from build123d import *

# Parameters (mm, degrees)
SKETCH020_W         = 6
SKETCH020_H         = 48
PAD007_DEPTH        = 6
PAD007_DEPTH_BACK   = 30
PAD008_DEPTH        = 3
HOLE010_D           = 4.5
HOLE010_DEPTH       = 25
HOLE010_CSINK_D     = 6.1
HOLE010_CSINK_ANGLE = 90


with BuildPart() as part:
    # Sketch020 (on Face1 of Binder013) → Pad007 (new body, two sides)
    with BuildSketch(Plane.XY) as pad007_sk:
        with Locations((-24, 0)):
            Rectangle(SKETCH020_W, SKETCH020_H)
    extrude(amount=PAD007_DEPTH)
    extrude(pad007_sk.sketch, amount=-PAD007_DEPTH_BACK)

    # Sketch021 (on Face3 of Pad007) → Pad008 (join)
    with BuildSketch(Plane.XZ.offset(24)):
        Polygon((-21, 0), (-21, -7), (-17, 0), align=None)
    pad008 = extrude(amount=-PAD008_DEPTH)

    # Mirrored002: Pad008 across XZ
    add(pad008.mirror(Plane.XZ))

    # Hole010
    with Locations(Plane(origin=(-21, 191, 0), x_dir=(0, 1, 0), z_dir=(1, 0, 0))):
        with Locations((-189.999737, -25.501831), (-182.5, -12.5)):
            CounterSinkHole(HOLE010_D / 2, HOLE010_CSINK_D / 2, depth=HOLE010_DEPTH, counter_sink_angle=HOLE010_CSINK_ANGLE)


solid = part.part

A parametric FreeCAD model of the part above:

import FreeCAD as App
import Part
import Sketcher

V = App.Vector
Q = App.Units.Quantity

doc = App.newDocument("Part")
body = doc.addObject("PartDesign::Body", "Body")

sketch1 = body.newObject("Sketcher::SketchObject", "Sketch")
sketch1.AttachmentSupport = (doc.getObject("XY_Plane"), [""])
sketch1.MapMode = "FlatFace"
sketch1.addGeometry(Part.LineSegment(V(-27, 24, 0), V(-27, -24, 0)), False)
sketch1.addGeometry(Part.LineSegment(V(-27, -24, 0), V(-21, -24, 0)), False)
sketch1.addGeometry(Part.LineSegment(V(-21, -24, 0), V(-21, 24, 0)), False)
sketch1.addGeometry(Part.LineSegment(V(-21, 24, 0), V(-27, 24, 0)), False)
sketch1.addConstraint(Sketcher.Constraint("Coincident", 0, 2, 1, 1))
sketch1.addConstraint(Sketcher.Constraint("Coincident", 1, 2, 2, 1))
sketch1.addConstraint(Sketcher.Constraint("Coincident", 2, 2, 3, 1))
sketch1.addConstraint(Sketcher.Constraint("Coincident", 3, 2, 0, 1))
sketch1.addConstraint(Sketcher.Constraint("Vertical", 0))
sketch1.addConstraint(Sketcher.Constraint("Horizontal", 1))
sketch1.addConstraint(Sketcher.Constraint("Vertical", 2))
sketch1.addConstraint(Sketcher.Constraint("Horizontal", 3))
sketch1.addConstraint(Sketcher.Constraint("DistanceX", 1, 1, 1, 2, Q("6 mm")))
sketch1.addConstraint(Sketcher.Constraint("DistanceY", 0, 2, 0, 1, Q("48 mm")))
sketch1.addConstraint(Sketcher.Constraint("DistanceX", 0, 2, -1, 1, Q("27 mm")))
sketch1.addConstraint(Sketcher.Constraint("DistanceY", 0, 2, -1, 1, Q("24 mm")))
pad1 = body.newObject("PartDesign::Pad", "Pad")
pad1.Profile = sketch1
pad1.Type = "TwoLengths"
pad1.Length = 6
pad1.Length2 = 30

sketch2 = body.newObject("Sketcher::SketchObject", "Sketch001")
sketch2.AttachmentSupport = (doc.getObject("XZ_Plane"), [""])
sketch2.MapMode = "FlatFace"
sketch2.AttachmentOffset = App.Placement(V(0, 0, 24), App.Rotation())
sketch2.addGeometry(Part.LineSegment(V(-21, 0, 0), V(-21, -7, 0)), False)
sketch2.addGeometry(Part.LineSegment(V(-21, -7, 0), V(-17, 0, 0)), False)
sketch2.addGeometry(Part.LineSegment(V(-17, 0, 0), V(-21, 0, 0)), False)
sketch2.addConstraint(Sketcher.Constraint("Coincident", 0, 2, 1, 1))
sketch2.addConstraint(Sketcher.Constraint("Coincident", 1, 2, 2, 1))
sketch2.addConstraint(Sketcher.Constraint("Coincident", 2, 2, 0, 1))
sketch2.addConstraint(Sketcher.Constraint("Vertical", 0))
sketch2.addConstraint(Sketcher.Constraint("Horizontal", 2))
sketch2.addConstraint(Sketcher.Constraint("PointOnObject", 1, 2, -1))
sketch2.addConstraint(Sketcher.Constraint("DistanceX", 2, 2, 2, 1, Q("4 mm")))
sketch2.addConstraint(Sketcher.Constraint("DistanceY", 0, 2, 0, 1, Q("7 mm")))
sketch2.addConstraint(Sketcher.Constraint("DistanceX", 0, 2, -1, 1, Q("21 mm")))
pad2 = body.newObject("PartDesign::Pad", "Pad001")
pad2.Profile = sketch2
pad2.Length = 3
pad2.Reversed = True
doc.recompute()

mirrored = body.newObject("PartDesign::Mirrored", "Mirrored")
mirrored.Originals = [pad2]
mirrored.MirrorPlane = (doc.getObject("XZ_Plane"), [""])
body.Tip = mirrored

sketch3 = body.newObject("Sketcher::SketchObject", "Sketch002")
sketch3.AttachmentSupport = (doc.getObject("YZ_Plane"), [""])
sketch3.MapMode = "FlatFace"
sketch3.AttachmentOffset = App.Placement(V(0, 0, -21), App.Rotation())
sketch3.addGeometry(Part.Circle(V(1.000263, -25.501831, 0), V(0, 0, 1), 2.25), False)
sketch3.addGeometry(Part.Circle(V(8.5, -12.5, 0), V(0, 0, 1), 2.25), False)
sketch3.addConstraint(Sketcher.Constraint("Equal", 0, 1))
sketch3.addConstraint(Sketcher.Constraint("Diameter", 0, Q("4.5 mm")))
sketch3.addConstraint(Sketcher.Constraint("DistanceX", -1, 1, 1, 3, Q("8.5 mm")))
sketch3.addConstraint(Sketcher.Constraint("DistanceY", 1, 3, -1, 1, Q("12.5 mm")))
sketch3.addConstraint(Sketcher.Constraint("DistanceY", 0, 3, -1, 1, Q("25.501831 mm")))
sketch3.addConstraint(Sketcher.Constraint("DistanceX", -1, 1, 0, 3, Q("1.000263 mm")))
doc.recompute()
hole = body.newObject("PartDesign::Hole", "Hole")
hole.Profile = sketch3
hole.ThreadType = "None"
hole.Diameter = 4.5
hole.DepthType = "Dimension"
hole.Depth = 25
hole.DrillPoint = "Flat"
hole.HoleCutType = "Countersink"
hole.HoleCutDiameter = 6.1
hole.HoleCutCountersinkAngle = 90

doc.recompute()
